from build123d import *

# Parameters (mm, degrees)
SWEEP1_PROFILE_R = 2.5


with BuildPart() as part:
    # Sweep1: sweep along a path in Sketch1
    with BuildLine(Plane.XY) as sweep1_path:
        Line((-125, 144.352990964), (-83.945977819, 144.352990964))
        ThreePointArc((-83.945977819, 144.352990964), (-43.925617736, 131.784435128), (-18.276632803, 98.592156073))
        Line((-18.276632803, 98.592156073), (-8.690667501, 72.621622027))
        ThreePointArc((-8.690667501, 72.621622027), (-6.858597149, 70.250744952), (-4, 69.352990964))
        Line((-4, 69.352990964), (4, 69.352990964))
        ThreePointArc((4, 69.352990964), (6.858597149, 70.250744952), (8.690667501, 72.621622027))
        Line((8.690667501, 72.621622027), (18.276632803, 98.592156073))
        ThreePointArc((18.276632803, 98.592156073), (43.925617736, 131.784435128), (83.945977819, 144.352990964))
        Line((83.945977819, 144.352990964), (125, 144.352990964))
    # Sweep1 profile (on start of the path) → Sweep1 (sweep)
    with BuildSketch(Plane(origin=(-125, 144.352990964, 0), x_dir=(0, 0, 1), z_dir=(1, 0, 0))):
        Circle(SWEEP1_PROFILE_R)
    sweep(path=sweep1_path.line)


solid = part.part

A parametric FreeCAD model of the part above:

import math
import FreeCAD as App
import Part
import Sketcher

doc = App.newDocument("Part")
body = doc.addObject("PartDesign::Body", "Body")

sketch1 = body.newObject("Sketcher::SketchObject", "Sketch")
sketch1.AttachmentSupport = (doc.getObject("YZ_Plane"), [""])
sketch1.MapMode = "FlatFace"
sketch1.AttachmentOffset = App.Placement(App.Vector(0, 0, -125), App.Rotation())
sketch1.addGeometry(Part.Circle(App.Vector(144.4, 0, 0), App.Vector(0, 0, 1), 2.5), False)
sketch1.addConstraint([
    Sketcher.Constraint("PointOnObject", 0, 3, -1),
    Sketcher.Constraint("Diameter", 0, 5.0),
    Sketcher.Constraint("DistanceX", -1, 1, 0, 3, 144.352991),
])

sketch2 = body.newObject("Sketcher::SketchObject", "Sketch001")
sketch2.AttachmentSupport = (doc.getObject("XY_Plane"), [""])
sketch2.MapMode = "FlatFace"
sketch2.addGeometry([
    Part.LineSegment(App.Vector(-125, 144.4, 0), App.Vector(-83.9, 144.4, 0)),
    Part.ArcOfCircle(Part.Circle(App.Vector(-83.9, 74.4, 0), App.Vector(0, 0, 1), 70), math.radians(20), math.radians(90)),
    Part.LineSegment(App.Vector(-18.3, 98.6, 0), App.Vector(-8.7, 72.6, 0)),
    Part.ArcOfCircle(Part.Circle(App.Vector(-4, 74.4, 0), App.Vector(0, 0, 1), 5), math.radians(-160), math.radians(-90)),
    Part.LineSegment(App.Vector(-4, 69.4, 0), App.Vector(4, 69.4, 0)),
    Part.ArcOfCircle(Part.Circle(App.Vector(4, 74.4, 0), App.Vector(0, 0, 1), 5), math.radians(-90), math.radians(-20)),
    Part.LineSegment(App.Vector(8.7, 72.6, 0), App.Vector(18.3, 98.6, 0)),
    Part.ArcOfCircle(Part.Circle(App.Vector(83.9, 74.4, 0), App.Vector(0, 0, 1), 70), math.radians(90), math.radians(160)),
    Part.LineSegment(App.Vector(83.9, 144.4, 0), App.Vector(125, 144.4, 0)),
], False)
sketch2.addConstraint([
    Sketcher.Constraint("Tangent", 0, 2, 1, 2),
    Sketcher.Constraint("Tangent", 1, 1, 2, 1),
    Sketcher.Constraint("Tangent", 2, 2, 3, 1),
    Sketcher.Constraint("Tangent", 3, 2, 4, 1),
    Sketcher.Constraint("Tangent", 4, 2, 5, 1),
    Sketcher.Constraint("Tangent", 5, 2, 6, 1),
    Sketcher.Constraint("Tangent", 6, 2, 7, 2),
    Sketcher.Constraint("Tangent", 7, 1, 8, 1),
    Sketcher.Constraint("Horizontal", 0),
    Sketcher.Constraint("Horizontal", 4),
    Sketcher.Constraint("Horizontal", 8),
    Sketcher.Constraint("Equal", 3, 5),
    Sketcher.Constraint("Equal", 1, 7),
    Sketcher.Constraint("Symmetric", 1, 3, 7, 3, -2),
    Sketcher.Constraint("Horizontal", 1, 3, 3, 3),
    Sketcher.Constraint("Horizontal", 2, 2, 5, 2),
    Sketcher.Constraint("Equal", 0, 8),
    Sketcher.Constraint("Radius", 1, 70.0),
    Sketcher.Constraint("Radius", 3, 5.0),
    Sketcher.Constraint("DistanceX", 4, 1, 4, 2, 8.0),
    Sketcher.Constraint("DistanceX", 0, 1, -1, 1, 125.0),
    Sketcher.Constraint("DistanceX", 0, 1, 0, 2, 41.054022),
    Sketcher.Constraint("DistanceY", -1, 1, 1, 3, 74.352991),
])
doc.recompute()

additivepipe = body.newObject("PartDesign::AdditivePipe", "AdditivePipe")
additivepipe.Profile = sketch1
additivepipe.Spine = (sketch2, ["Edge1", "Edge2", "Edge3", "Edge4", "Edge5", "Edge6", "Edge7", "Edge8", "Edge9"])

doc.recompute()
